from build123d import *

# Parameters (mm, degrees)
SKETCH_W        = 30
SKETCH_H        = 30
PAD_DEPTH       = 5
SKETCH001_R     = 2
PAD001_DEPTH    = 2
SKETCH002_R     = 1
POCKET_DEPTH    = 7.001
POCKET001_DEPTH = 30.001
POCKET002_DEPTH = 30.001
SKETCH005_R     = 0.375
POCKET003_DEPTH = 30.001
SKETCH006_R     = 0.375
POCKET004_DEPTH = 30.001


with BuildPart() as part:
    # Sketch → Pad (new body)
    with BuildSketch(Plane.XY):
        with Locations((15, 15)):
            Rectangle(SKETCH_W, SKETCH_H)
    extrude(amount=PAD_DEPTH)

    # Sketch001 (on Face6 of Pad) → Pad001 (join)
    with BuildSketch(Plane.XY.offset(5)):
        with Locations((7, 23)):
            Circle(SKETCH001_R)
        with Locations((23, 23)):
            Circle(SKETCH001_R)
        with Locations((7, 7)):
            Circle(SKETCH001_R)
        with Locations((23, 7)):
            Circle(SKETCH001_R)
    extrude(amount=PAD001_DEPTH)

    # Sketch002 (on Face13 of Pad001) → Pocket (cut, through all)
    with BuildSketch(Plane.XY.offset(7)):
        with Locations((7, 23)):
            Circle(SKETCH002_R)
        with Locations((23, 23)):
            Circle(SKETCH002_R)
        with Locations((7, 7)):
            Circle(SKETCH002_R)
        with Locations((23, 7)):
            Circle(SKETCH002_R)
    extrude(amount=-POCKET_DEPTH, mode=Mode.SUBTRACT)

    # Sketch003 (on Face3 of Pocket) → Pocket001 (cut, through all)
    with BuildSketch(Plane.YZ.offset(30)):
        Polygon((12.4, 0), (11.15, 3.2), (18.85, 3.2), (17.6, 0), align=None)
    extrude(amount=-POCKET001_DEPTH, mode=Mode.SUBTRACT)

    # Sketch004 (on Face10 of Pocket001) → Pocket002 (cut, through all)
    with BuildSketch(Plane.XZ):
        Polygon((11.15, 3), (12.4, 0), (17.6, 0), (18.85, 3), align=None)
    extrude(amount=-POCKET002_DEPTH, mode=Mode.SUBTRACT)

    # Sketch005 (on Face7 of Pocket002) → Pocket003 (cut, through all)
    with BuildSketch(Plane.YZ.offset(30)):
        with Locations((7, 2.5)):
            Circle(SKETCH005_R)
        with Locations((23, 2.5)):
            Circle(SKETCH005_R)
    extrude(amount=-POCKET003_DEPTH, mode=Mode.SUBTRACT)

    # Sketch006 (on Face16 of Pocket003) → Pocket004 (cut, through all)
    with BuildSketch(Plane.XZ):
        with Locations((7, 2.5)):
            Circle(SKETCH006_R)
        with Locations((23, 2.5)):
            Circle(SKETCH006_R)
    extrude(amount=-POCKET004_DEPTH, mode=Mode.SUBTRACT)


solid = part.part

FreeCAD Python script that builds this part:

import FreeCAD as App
import Part
import Sketcher

V = App.Vector

doc = App.newDocument("Part")
body = doc.addObject("PartDesign::Body", "Body")

# Sketch on XY plane
sketch1 = body.newObject("Sketcher::SketchObject", "Sketch")
sketch1.AttachmentSupport = (doc.getObject("XY_Plane"), [""])
sketch1.MapMode = "FlatFace"
sketch1.addGeometry([
    Part.LineSegment(V(0, 30, 0), V(0, 0, 0)),
    Part.LineSegment(V(0, 0, 0), V(30, 0, 0)),
    Part.LineSegment(V(30, 0, 0), V(30, 30, 0)),
    Part.LineSegment(V(30, 30, 0), V(0, 30, 0)),
], False)
sketch1.addConstraint([
    Sketcher.Constraint("Coincident", 0, 2, 1, 1),
    Sketcher.Constraint("Coincident", 1, 2, 2, 1),
    Sketcher.Constraint("Coincident", 2, 2, 3, 1),
    Sketcher.Constraint("Coincident", 3, 2, 0, 1),
    Sketcher.Constraint("Vertical", 0),
    Sketcher.Constraint("Horizontal", 1),
    Sketcher.Constraint("Vertical", 2),
    Sketcher.Constraint("Horizontal", 3),
    Sketcher.Constraint("Coincident", 0, 2, -1, 1),
    Sketcher.Constraint("Equal", 3, 0),
    Sketcher.Constraint("DistanceX", 1, 1, 1, 2, 30.0),
])
pad1 = body.newObject("PartDesign::Pad", "Pad")
pad1.Profile = sketch1
pad1.Length = 5

# Sketch on XY plane
sketch2 = body.newObject("Sketcher::SketchObject", "Sketch001")
sketch2.AttachmentSupport = (doc.getObject("XY_Plane"), [""])
sketch2.MapMode = "FlatFace"
sketch2.AttachmentOffset = App.Placement(V(0, 0, 5), App.Rotation())
sketch2.addGeometry([
    Part.Circle(V(7, 23, 0), V(0, 0, 1), 2),
    Part.Circle(V(23, 23, 0), V(0, 0, 1), 2),
    Part.Circle(V(7, 7, 0), V(0, 0, 1), 2),
    Part.Circle(V(23, 7, 0), V(0, 0, 1), 2),
], False)
sketch2.addConstraint([
    Sketcher.Constraint("Equal", 0, 1),
    Sketcher.Constraint("Equal", 1, 2),
    Sketcher.Constraint("Equal", 2, 3),
    Sketcher.Constraint("Horizontal", 0, 3, 1, 3),
    Sketcher.Constraint("Horizontal", 2, 3, 3, 3),
    Sketcher.Constraint("Vertical", 0, 3, 2, 3),
    Sketcher.Constraint("Vertical", 1, 3, 3, 3),
    Sketcher.Constraint("Diameter", 0, 4.0),
    Sketcher.Constraint("DistanceX", -1, 1, 0, 3, 7.0),
    Sketcher.Constraint("DistanceY", -1, 1, 0, 3, 23.0),
    Sketcher.Constraint("DistanceX", -1, 1, 1, 3, 23.0),
    Sketcher.Constraint("DistanceY", -1, 1, 2, 3, 7.0),
])
pad2 = body.newObject("PartDesign::Pad", "Pad001")
pad2.Profile = sketch2
pad2.Length = 2

# Sketch on XY plane
sketch3 = body.newObject("Sketcher::SketchObject", "Sketch002")
sketch3.AttachmentSupport = (doc.getObject("XY_Plane"), [""])
sketch3.MapMode = "FlatFace"
sketch3.AttachmentOffset = App.Placement(V(0, 0, 7), App.Rotation())
sketch3.addGeometry([
    Part.Circle(V(7, 23, 0), V(0, 0, 1), 1),
    Part.Circle(V(23, 23, 0), V(0, 0, 1), 1),
    Part.Circle(V(7, 7, 0), V(0, 0, 1), 1),
    Part.Circle(V(23, 7, 0), V(0, 0, 1), 1),
], False)
sketch3.addConstraint([
    Sketcher.Constraint("Equal", 0, 1),
    Sketcher.Constraint("Equal", 1, 2),
    Sketcher.Constraint("Equal", 2, 3),
    Sketcher.Constraint("Horizontal", 0, 3, 1, 3),
    Sketcher.Constraint("Horizontal", 2, 3, 3, 3),
    Sketcher.Constraint("Vertical", 0, 3, 2, 3),
    Sketcher.Constraint("Vertical", 1, 3, 3, 3),
    Sketcher.Constraint("Diameter", 0, 2.0),
    Sketcher.Constraint("DistanceX", -1, 1, 0, 3, 7.0),
    Sketcher.Constraint("DistanceY", -1, 1, 0, 3, 23.0),
    Sketcher.Constraint("DistanceX", -1, 1, 1, 3, 23.0),
    Sketcher.Constraint("DistanceY", -1, 1, 2, 3, 7.0),
])
pocket1 = body.newObject("PartDesign::Pocket", "Pocket")
pocket1.Profile = sketch3
pocket1.Type = "ThroughAll"

# Sketch on YZ plane
sketch4 = body.newObject("Sketcher::SketchObject", "Sketch003")
sketch4.AttachmentSupport = (doc.getObject("YZ_Plane"), [""])
sketch4.MapMode = "FlatFace"
sketch4.AttachmentOffset = App.Placement(V(0, 0, 30), App.Rotation())
sketch4.addGeometry([
    Part.LineSegment(V(11.2, 3.2, 0), V(12.4, 0, 0)),
    Part.LineSegment(V(12.4, 0, 0), V(17.6, 0, 0)),
    Part.LineSegment(V(17.6, 0, 0), V(18.9, 3.2, 0)),
    Part.LineSegment(V(18.9, 3.2, 0), V(11.2, 3.2, 0)),
], False)
sketch4.addConstraint([
    Sketcher.Constraint("Coincident", 0, 2, 1, 1),
    Sketcher.Constraint("Coincident", 1, 2, 2, 1),
    Sketcher.Constraint("Coincident", 2, 2, 3, 1),
    Sketcher.Constraint("Coincident", 3, 2, 0, 1),
    Sketcher.Constraint("Horizontal", 1),
    Sketcher.Constraint("Horizontal", 3),
    Sketcher.Constraint("PointOnObject", 0, 2, -1),
    Sketcher.Constraint("Equal", 0, 2),
    Sketcher.Constraint("DistanceX", 1, 1, 1, 2, 5.2),
    Sketcher.Constraint("DistanceX", 3, 2, 3, 1, 7.7),
    Sketcher.Constraint("DistanceX", -1, 1, 0, 2, 12.4),
    Sketcher.Constraint("DistanceY", -1, 1, 2, 2, 3.2),
])
pocket2 = body.newObject("PartDesign::Pocket", "Pocket001")
pocket2.Profile = sketch4
pocket2.Type = "ThroughAll"

# Sketch on XZ plane
sketch5 = body.newObject("Sketcher::SketchObject", "Sketch004")
sketch5.AttachmentSupport = (doc.getObject("XZ_Plane"), [""])
sketch5.MapMode = "FlatFace"
sketch5.addGeometry([
    Part.LineSegment(V(11.2, 3, 0), V(12.4, 0, 0)),
    Part.LineSegment(V(12.4, 0, 0), V(17.6, 0, 0)),
    Part.LineSegment(V(17.6, 0, 0), V(18.9, 3, 0)),
    Part.LineSegment(V(18.9, 3, 0), V(11.2, 3, 0)),
], False)
sketch5.addConstraint([
    Sketcher.Constraint("Coincident", 0, 2, 1, 1),
    Sketcher.Constraint("Coincident", 1, 2, 2, 1),
    Sketcher.Constraint("Coincident", 2, 2, 3, 1),
    Sketcher.Constraint("Coincident", 3, 2, 0, 1),
    Sketcher.Constraint("Horizontal", 1),
    Sketcher.Constraint("Horizontal", 3),
    Sketcher.Constraint("PointOnObject", 0, 2, -1),
    Sketcher.Constraint("Equal", 0, 2),
    Sketcher.Constraint("DistanceX", 1, 1, 1, 2, 5.2),
    Sketcher.Constraint("DistanceX", 3, 2, 3, 1, 7.7),
    Sketcher.Constraint("DistanceY", -1, 1, 2, 2, 3.0),
    Sketcher.Constraint("DistanceX", -1, 1, 0, 2, 12.4),
])
pocket3 = body.newObject("PartDesign::Pocket", "Pocket002")
pocket3.Profile = sketch5
pocket3.Type = "ThroughAll"

# Sketch on YZ plane
sketch6 = body.newObject("Sketcher::SketchObject", "Sketch005")
sketch6.AttachmentSupport = (doc.getObject("YZ_Plane"), [""])
sketch6.MapMode = "FlatFace"
sketch6.AttachmentOffset = App.Placement(V(0, 0, 30), App.Rotation())
sketch6.addGeometry([
    Part.Circle(V(7, 2.5, 0), V(0, 0, 1), 0.38),
    Part.Circle(V(23, 2.5, 0), V(0, 0, 1), 0.38),
], False)
sketch6.addConstraint([
    Sketcher.Constraint("Equal", 0, 1),
    Sketcher.Constraint("Horizontal", 0, 3, 1, 3),
    Sketcher.Constraint("Diameter", 0, 0.75),
    Sketcher.Constraint("DistanceX", -1, 1, 0, 3, 7.0),
    Sketcher.Constraint("DistanceX", -1, 1, 1, 3, 23.0),
    Sketcher.Constraint("DistanceY", -1, 1, 0, 3, 2.5),
])
pocket4 = body.newObject("PartDesign::Pocket", "Pocket003")
pocket4.Profile = sketch6
pocket4.Type = "ThroughAll"

# Sketch on XZ plane
sketch7 = body.newObject("Sketcher::SketchObject", "Sketch006")
sketch7.AttachmentSupport = (doc.getObject("XZ_Plane"), [""])
sketch7.MapMode = "FlatFace"
sketch7.addGeometry([
    Part.Circle(V(7, 2.5, 0), V(0, 0, 1), 0.38),
    Part.Circle(V(23, 2.5, 0), V(0, 0, 1), 0.38),
], False)
sketch7.addConstraint([
    Sketcher.Constraint("Equal", 0, 1),
    Sketcher.Constraint("Horizontal", 0, 3, 1, 3),
    Sketcher.Constraint("Diameter", 0, 0.75),
    Sketcher.Constraint("DistanceX", -1, 1, 0, 3, 7.0),
    Sketcher.Constraint("DistanceX", -1, 1, 1, 3, 23.0),
    Sketcher.Constraint("DistanceY", -1, 1, 0, 3, 2.5),
])
pocket5 = body.newObject("PartDesign::Pocket", "Pocket004")
pocket5.Profile = sketch7
pocket5.Type = "ThroughAll"

doc.recompute()
